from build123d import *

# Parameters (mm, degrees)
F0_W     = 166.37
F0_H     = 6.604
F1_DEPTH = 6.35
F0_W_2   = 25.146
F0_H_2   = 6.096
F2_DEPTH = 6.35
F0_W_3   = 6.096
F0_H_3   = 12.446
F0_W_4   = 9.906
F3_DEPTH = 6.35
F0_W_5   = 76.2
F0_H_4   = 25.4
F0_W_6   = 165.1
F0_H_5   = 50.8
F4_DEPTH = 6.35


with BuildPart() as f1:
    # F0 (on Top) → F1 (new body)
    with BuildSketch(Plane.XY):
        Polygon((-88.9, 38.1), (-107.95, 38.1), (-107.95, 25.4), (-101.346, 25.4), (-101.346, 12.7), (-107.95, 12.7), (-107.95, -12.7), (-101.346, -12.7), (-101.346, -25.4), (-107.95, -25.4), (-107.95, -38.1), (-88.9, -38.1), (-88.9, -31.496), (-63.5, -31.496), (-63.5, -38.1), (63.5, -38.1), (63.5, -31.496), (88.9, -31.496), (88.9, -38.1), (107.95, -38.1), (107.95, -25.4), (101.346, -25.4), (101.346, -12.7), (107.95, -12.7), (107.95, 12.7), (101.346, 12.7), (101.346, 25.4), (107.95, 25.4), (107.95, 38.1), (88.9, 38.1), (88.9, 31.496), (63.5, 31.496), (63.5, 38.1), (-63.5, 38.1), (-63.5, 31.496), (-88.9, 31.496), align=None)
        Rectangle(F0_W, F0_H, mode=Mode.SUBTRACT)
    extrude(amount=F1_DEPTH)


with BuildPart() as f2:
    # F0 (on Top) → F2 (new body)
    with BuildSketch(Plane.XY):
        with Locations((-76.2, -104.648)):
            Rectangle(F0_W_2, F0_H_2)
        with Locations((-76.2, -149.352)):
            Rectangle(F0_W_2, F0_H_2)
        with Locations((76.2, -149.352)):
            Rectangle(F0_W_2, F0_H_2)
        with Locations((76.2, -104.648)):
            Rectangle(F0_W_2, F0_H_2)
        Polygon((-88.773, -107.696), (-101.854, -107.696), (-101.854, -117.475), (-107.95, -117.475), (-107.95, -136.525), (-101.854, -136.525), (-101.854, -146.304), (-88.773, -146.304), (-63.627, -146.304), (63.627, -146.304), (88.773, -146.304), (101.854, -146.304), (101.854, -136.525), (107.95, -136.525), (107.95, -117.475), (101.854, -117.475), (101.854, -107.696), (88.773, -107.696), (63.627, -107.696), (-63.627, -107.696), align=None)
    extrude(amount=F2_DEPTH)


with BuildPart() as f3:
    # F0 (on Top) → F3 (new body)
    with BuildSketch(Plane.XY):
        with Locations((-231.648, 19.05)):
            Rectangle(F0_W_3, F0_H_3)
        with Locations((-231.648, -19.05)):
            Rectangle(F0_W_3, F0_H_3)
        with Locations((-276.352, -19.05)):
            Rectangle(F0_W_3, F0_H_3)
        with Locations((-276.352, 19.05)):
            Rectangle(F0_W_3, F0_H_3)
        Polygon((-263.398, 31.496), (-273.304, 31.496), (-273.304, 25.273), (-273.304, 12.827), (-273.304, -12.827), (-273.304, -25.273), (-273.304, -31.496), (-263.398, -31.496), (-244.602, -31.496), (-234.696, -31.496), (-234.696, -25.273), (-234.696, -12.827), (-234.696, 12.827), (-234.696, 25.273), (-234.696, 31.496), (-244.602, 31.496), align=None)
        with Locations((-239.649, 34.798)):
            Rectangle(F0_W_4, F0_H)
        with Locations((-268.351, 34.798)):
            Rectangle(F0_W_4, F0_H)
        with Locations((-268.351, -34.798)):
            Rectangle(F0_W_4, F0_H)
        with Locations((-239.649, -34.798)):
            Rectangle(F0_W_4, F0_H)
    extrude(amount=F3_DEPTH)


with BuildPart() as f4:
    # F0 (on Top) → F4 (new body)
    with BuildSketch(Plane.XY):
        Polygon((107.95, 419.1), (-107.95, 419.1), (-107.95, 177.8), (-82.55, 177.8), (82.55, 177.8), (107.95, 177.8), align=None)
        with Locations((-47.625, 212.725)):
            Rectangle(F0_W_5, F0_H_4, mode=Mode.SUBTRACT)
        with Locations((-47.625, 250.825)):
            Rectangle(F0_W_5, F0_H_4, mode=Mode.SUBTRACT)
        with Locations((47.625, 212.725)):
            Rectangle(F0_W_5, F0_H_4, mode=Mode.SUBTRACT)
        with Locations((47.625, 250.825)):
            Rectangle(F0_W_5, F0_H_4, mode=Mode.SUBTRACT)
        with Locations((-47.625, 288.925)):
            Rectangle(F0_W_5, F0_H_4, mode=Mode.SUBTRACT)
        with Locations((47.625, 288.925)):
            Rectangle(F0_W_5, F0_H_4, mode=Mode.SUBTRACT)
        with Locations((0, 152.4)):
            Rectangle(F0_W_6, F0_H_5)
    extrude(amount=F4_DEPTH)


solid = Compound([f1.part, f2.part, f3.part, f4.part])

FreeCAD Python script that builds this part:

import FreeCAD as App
import Part
import Sketcher

V = App.Vector
Q = App.Units.Quantity

doc = App.newDocument("Part")
params = doc.addObject("Spreadsheet::Sheet", "Params")
for row, (alias, value) in enumerate([
    ("sketch1_width", "1 in"),
    ("sketch1_width2", "5 in"),
    ("sketch1_height", "0.5 in"),
    ("sketch1_width3", "0.75 in"),
    ("sketch1_width4", "0.26 in"),
    ("pad1_length", "0.25 in"),
    ("sketch2_width", "0.24 in"),
    ("sketch2_width2", "0.99 in"),
    ("sketch2_height", "0.75 in"),
    ("sketch2_width3", "0.515 in"),
    ("pad2_length", "0.25 in"),
    ("sketch3_width", "0.24 in"),
    ("sketch3_width2", "0.39 in"),
    ("sketch3_height", "0.49 in"),
    ("sketch3_height2", "0.26 in"),
    ("sketch3_height3", "1.01 in"),
    ("pad3_length", "0.25 in"),
    ("sketch4_width", "1 in"),
    ("sketch4_width2", "3 in"),
    ("sketch4_height", "2 in"),
    ("sketch4_width3", "8.5 in"),
    ("sketch4_height2", "9.5 in"),
    ("pad4_length", "0.25 in"),
], start=1):
    params.set(f"A{row}", alias)
    params.set(f"B{row}", "=" + value)
    params.setAlias(f"B{row}", alias)

body = doc.addObject("PartDesign::Body", "Body")

sketch1 = doc.addObject("Sketcher::SketchObject", "Sketch")
body.addObject(sketch1)
sketch1.AttachmentSupport = (doc.XY_Plane, [""])
sketch1.MapMode = "FlatFace"
sketch1.addGeometry([
    Part.LineSegment(V(-89, 38, 0), V(-108, 38, 0)),
    Part.LineSegment(V(-108, 38, 0), V(-108, 25, 0)),
    Part.LineSegment(V(-108, 25, 0), V(-101, 25, 0)),
    Part.LineSegment(V(-101, 25, 0), V(-101, 13, 0)),
    Part.LineSegment(V(-101, 13, 0), V(-108, 13, 0)),
    Part.LineSegment(V(-108, 13, 0), V(-108, -13, 0)),
    Part.LineSegment(V(-108, -13, 0), V(-101, -13, 0)),
    Part.LineSegment(V(-101, -13, 0), V(-101, -25, 0)),
    Part.LineSegment(V(-101, -25, 0), V(-108, -25, 0)),
    Part.LineSegment(V(-108, -25, 0), V(-108, -38, 0)),
    Part.LineSegment(V(-108, -38, 0), V(-89, -38, 0)),
    Part.LineSegment(V(-89, -38, 0), V(-89, -31, 0)),
    Part.LineSegment(V(-89, -31, 0), V(-64, -31, 0)),
    Part.LineSegment(V(-64, -31, 0), V(-64, -38, 0)),
    Part.LineSegment(V(-64, -38, 0), V(64, -38, 0)),
    Part.LineSegment(V(64, -38, 0), V(64, -31, 0)),
    Part.LineSegment(V(64, -31, 0), V(89, -31, 0)),
    Part.LineSegment(V(89, -31, 0), V(89, -38, 0)),
    Part.LineSegment(V(89, -38, 0), V(108, -38, 0)),
    Part.LineSegment(V(108, -38, 0), V(108, -25, 0)),
    Part.LineSegment(V(108, -25, 0), V(101, -25, 0)),
    Part.LineSegment(V(101, -25, 0), V(101, -13, 0)),
    Part.LineSegment(V(101, -13, 0), V(108, -13, 0)),
    Part.LineSegment(V(108, -13, 0), V(108, 13, 0)),
    Part.LineSegment(V(108, 13, 0), V(101, 13, 0)),
    Part.LineSegment(V(101, 13, 0), V(101, 25, 0)),
    Part.LineSegment(V(101, 25, 0), V(108, 25, 0)),
    Part.LineSegment(V(108, 25, 0), V(108, 38, 0)),
    Part.LineSegment(V(108, 38, 0), V(89, 38, 0)),
    Part.LineSegment(V(89, 38, 0), V(89, 31, 0)),
    Part.LineSegment(V(89, 31, 0), V(64, 31, 0)),
    Part.LineSegment(V(64, 31, 0), V(64, 38, 0)),
    Part.LineSegment(V(64, 38, 0), V(-64, 38, 0)),
    Part.LineSegment(V(-64, 38, 0), V(-64, 31, 0)),
    Part.LineSegment(V(-64, 31, 0), V(-89, 31, 0)),
    Part.LineSegment(V(-89, 31, 0), V(-89, 38, 0)),
    Part.LineSegment(V(83, -3, 0), V(-83, -3, 0)),
    Part.LineSegment(V(-83, -3, 0), V(-83, 3, 0)),
    Part.LineSegment(V(-83, 3, 0), V(83, 3, 0)),
    Part.LineSegment(V(83, 3, 0), V(83, -3, 0)),
], False)
sketch1.addConstraint([
    Sketcher.Constraint("Coincident", 0, 2, 1, 1),
    Sketcher.Constraint("Coincident", 1, 2, 2, 1),
    Sketcher.Constraint("Coincident", 2, 2, 3, 1),
    Sketcher.Constraint("Coincident", 3, 2, 4, 1),
    Sketcher.Constraint("Coincident", 4, 2, 5, 1),
    Sketcher.Constraint("Coincident", 5, 2, 6, 1),
    Sketcher.Constraint("Coincident", 6, 2, 7, 1),
    Sketcher.Constraint("Coincident", 7, 2, 8, 1),
    Sketcher.Constraint("Coincident", 8, 2, 9, 1),
    Sketcher.Constraint("Coincident", 9, 2, 10, 1),
    Sketcher.Constraint("Coincident", 10, 2, 11, 1),
    Sketcher.Constraint("Coincident", 11, 2, 12, 1),
    Sketcher.Constraint("Coincident", 12, 2, 13, 1),
    Sketcher.Constraint("Coincident", 13, 2, 14, 1),
    Sketcher.Constraint("Coincident", 14, 2, 15, 1),
    Sketcher.Constraint("Coincident", 15, 2, 16, 1),
    Sketcher.Constraint("Coincident", 16, 2, 17, 1),
    Sketcher.Constraint("Coincident", 17, 2, 18, 1),
    Sketcher.Constraint("Coincident", 18, 2, 19, 1),
    Sketcher.Constraint("Coincident", 19, 2, 20, 1),
    Sketcher.Constraint("Coincident", 20, 2, 21, 1),
    Sketcher.Constraint("Coincident", 21, 2, 22, 1),
    Sketcher.Constraint("Coincident", 22, 2, 23, 1),
    Sketcher.Constraint("Coincident", 23, 2, 24, 1),
    Sketcher.Constraint("Coincident", 24, 2, 25, 1),
    Sketcher.Constraint("Coincident", 25, 2, 26, 1),
    Sketcher.Constraint("Coincident", 26, 2, 27, 1),
    Sketcher.Constraint("Coincident", 27, 2, 28, 1),
    Sketcher.Constraint("Coincident", 28, 2, 29, 1),
    Sketcher.Constraint("Coincident", 29, 2, 30, 1),
    Sketcher.Constraint("Coincident", 30, 2, 31, 1),
    Sketcher.Constraint("Coincident", 31, 2, 32, 1),
    Sketcher.Constraint("Coincident", 32, 2, 33, 1),
    Sketcher.Constraint("Coincident", 33, 2, 34, 1),
    Sketcher.Constraint("Coincident", 34, 2, 35, 1),
    Sketcher.Constraint("Coincident", 35, 2, 0, 1),
    Sketcher.Constraint("Coincident", 36, 2, 37, 1),
    Sketcher.Constraint("Coincident", 37, 2, 38, 1),
    Sketcher.Constraint("Coincident", 38, 2, 39, 1),
    Sketcher.Constraint("Coincident", 39, 2, 36, 1),
    Sketcher.Constraint("Horizontal", 0),
    Sketcher.Constraint("Vertical", 1),
    Sketcher.Constraint("Horizontal", 2),
    Sketcher.Constraint("Vertical", 3),
    Sketcher.Constraint("Horizontal", 4),
    Sketcher.Constraint("Vertical", 5),
    Sketcher.Constraint("Horizontal", 6),
    Sketcher.Constraint("Vertical", 7),
    Sketcher.Constraint("Horizontal", 8),
    Sketcher.Constraint("Vertical", 9),
    Sketcher.Constraint("Horizontal", 10),
    Sketcher.Constraint("Vertical", 11),
    Sketcher.Constraint("Horizontal", 12),
    Sketcher.Constraint("Vertical", 13),
    Sketcher.Constraint("Horizontal", 14),
    Sketcher.Constraint("Vertical", 15),
    Sketcher.Constraint("Horizontal", 16),
    Sketcher.Constraint("Vertical", 17),
    Sketcher.Constraint("Horizontal", 18),
    Sketcher.Constraint("Vertical", 19),
    Sketcher.Constraint("Horizontal", 20),
    Sketcher.Constraint("Vertical", 21),
    Sketcher.Constraint("Horizontal", 22),
    Sketcher.Constraint("Vertical", 23),
    Sketcher.Constraint("Horizontal", 24),
    Sketcher.Constraint("Vertical", 25),
    Sketcher.Constraint("Horizontal", 26),
    Sketcher.Constraint("Vertical", 27),
    Sketcher.Constraint("Horizontal", 28),
    Sketcher.Constraint("Vertical", 29),
    Sketcher.Constraint("Horizontal", 30),
    Sketcher.Constraint("Vertical", 31),
    Sketcher.Constraint("Horizontal", 32),
    Sketcher.Constraint("Vertical", 33),
    Sketcher.Constraint("Horizontal", 34),
    Sketcher.Constraint("Vertical", 35),
    Sketcher.Constraint("Horizontal", 36),
    Sketcher.Constraint("Vertical", 37),
    Sketcher.Constraint("Horizontal", 38),
    Sketcher.Constraint("Vertical", 39),
    Sketcher.Constraint("Symmetric", 0, 2, 18, 2, -1, 1),
    Sketcher.Constraint("Symmetric", 2, 2, 20, 2, -1, 1),
    Sketcher.Constraint("Symmetric", 4, 2, 22, 2, -1, 1),
    Sketcher.Constraint("Symmetric", 6, 2, 24, 2, -1, 1),
    Sketcher.Constraint("Symmetric", 8, 2, 26, 2, -1, 1),
    Sketcher.Constraint("Symmetric", 10, 2, 28, 2, -1, 1),
    Sketcher.Constraint("Symmetric", 12, 2, 30, 2, -1, 1),
    Sketcher.Constraint("Symmetric", 14, 2, 32, 2, -1, 1),
    Sketcher.Constraint("Symmetric", 16, 2, 34, 2, -1, 1),
    Sketcher.Constraint("Symmetric", 36, 2, 38, 2, -1, 1),
    Sketcher.Constraint("Symmetric", 12, 2, 15, 2, -2),
    Sketcher.Constraint("Symmetric", 10, 2, 17, 2, -2),
    Sketcher.Constraint("Symmetric", 8, 2, 19, 2, -2),
    Sketcher.Constraint("Symmetric", 6, 2, 21, 2, -2),
    Sketcher.Constraint("Horizontal", 10, 2, 13, 2),
    Sketcher.Constraint("Vertical", 1, 2, 4, 2),
    Sketcher.Constraint("Equal", 1, 3),
    Sketcher.Constraint("Equal", 34, 5),
    Sketcher.Constraint("Equal", 26, 11),
    Sketcher.Constraint("Equal", 35, 37),
    Sketcher.Constraint("DistanceX", 12, 1, 12, 2, Q("1 in")),
    Sketcher.Constraint("DistanceX", 14, 1, 14, 2, Q("5 in")),
    Sketcher.Constraint("DistanceY", 1, 2, 1, 1, Q("0.5 in")),
    Sketcher.Constraint("DistanceX", 0, 2, 0, 1, Q("0.75 in")),
    Sketcher.Constraint("DistanceX", 2, 1, 2, 2, Q("0.26 in")),
    Sketcher.Constraint("DistanceX", 36, 2, 36, 1, Q("6.55 in")),
])
sketch1.setExpression("Constraints[100]", "Params.sketch1_width")
sketch1.setExpression("Constraints[101]", "Params.sketch1_width2")
sketch1.setExpression("Constraints[102]", "Params.sketch1_height")
sketch1.setExpression("Constraints[103]", "Params.sketch1_width3")
sketch1.setExpression("Constraints[104]", "Params.sketch1_width4")
pad1 = doc.addObject("PartDesign::Pad", "Pad")
body.addObject(pad1)
pad1.Profile = sketch1
pad1.setExpression("Length", "Params.pad1_length")
body2 = doc.addObject("PartDesign::Body", "Body001")

sketch2 = doc.addObject("Sketcher::SketchObject", "Sketch001")
body2.addObject(sketch2)
sketch2.AttachmentSupport = (doc.getObject("XY_Plane001"), [""])
sketch2.MapMode = "FlatFace"
sketch2.addGeometry([
    Part.LineSegment(V(-89, -102, 0), V(-89, -108, 0)),
    Part.LineSegment(V(-89, -108, 0), V(-102, -108, 0)),
    Part.LineSegment(V(-102, -108, 0), V(-102, -117, 0)),
    Part.LineSegment(V(-102, -117, 0), V(-108, -117, 0)),
    Part.LineSegment(V(-108, -117, 0), V(-108, -137, 0)),
    Part.LineSegment(V(-108, -137, 0), V(-102, -137, 0)),
    Part.LineSegment(V(-102, -137, 0), V(-102, -146, 0)),
    Part.LineSegment(V(-102, -146, 0), V(-89, -146, 0)),
    Part.LineSegment(V(-89, -146, 0), V(-89, -152, 0)),
    Part.LineSegment(V(-89, -152, 0), V(-64, -152, 0)),
    Part.LineSegment(V(-64, -152, 0), V(-64, -146, 0)),
    Part.LineSegment(V(-64, -146, 0), V(64, -146, 0)),
    Part.LineSegment(V(64, -146, 0), V(64, -152, 0)),
    Part.LineSegment(V(64, -152, 0), V(89, -152, 0)),
    Part.LineSegment(V(89, -152, 0), V(89, -146, 0)),
    Part.LineSegment(V(89, -146, 0), V(102, -146, 0)),
    Part.LineSegment(V(102, -146, 0), V(102, -137, 0)),
    Part.LineSegment(V(102, -137, 0), V(108, -137, 0)),
    Part.LineSegment(V(108, -137, 0), V(108, -117, 0)),
    Part.LineSegment(V(108, -117, 0), V(102, -117, 0)),
    Part.LineSegment(V(102, -117, 0), V(102, -108, 0)),
    Part.LineSegment(V(102, -108, 0), V(89, -108, 0)),
    Part.LineSegment(V(89, -108, 0), V(89, -102, 0)),
    Part.LineSegment(V(89, -102, 0), V(64, -102, 0)),
    Part.LineSegment(V(64, -102, 0), V(64, -108, 0)),
    Part.LineSegment(V(64, -108, 0), V(-64, -108, 0)),
    Part.LineSegment(V(-64, -108, 0), V(-64, -102, 0)),
    Part.LineSegment(V(-64, -102, 0), V(-89, -102, 0)),
], False)
sketch2.addConstraint([
    Sketcher.Constraint("Coincident", 0, 2, 1, 1),
    Sketcher.Constraint("Coincident", 1, 2, 2, 1),
    Sketcher.Constraint("Coincident", 2, 2, 3, 1),
    Sketcher.Constraint("Coincident", 3, 2, 4, 1),
    Sketcher.Constraint("Coincident", 4, 2, 5, 1),
    Sketcher.Constraint("Coincident", 5, 2, 6, 1),
    Sketcher.Constraint("Coincident", 6, 2, 7, 1),
    Sketcher.Constraint("Coincident", 7, 2, 8, 1),
    Sketcher.Constraint("Coincident", 8, 2, 9, 1),
    Sketcher.Constraint("Coincident", 9, 2, 10, 1),
    Sketcher.Constraint("Coincident", 10, 2, 11, 1),
    Sketcher.Constraint("Coincident", 11, 2, 12, 1),
    Sketcher.Constraint("Coincident", 12, 2, 13, 1),
    Sketcher.Constraint("Coincident", 13, 2, 14, 1),
    Sketcher.Constraint("Coincident", 14, 2, 15, 1),
    Sketcher.Constraint("Coincident", 15, 2, 16, 1),
    Sketcher.Constraint("Coincident", 16, 2, 17, 1),
    Sketcher.Constraint("Coincident", 17, 2, 18, 1),
    Sketcher.Constraint("Coincident", 18, 2, 19, 1),
    Sketcher.Constraint("Coincident", 19, 2, 20, 1),
    Sketcher.Constraint("Coincident", 20, 2, 21, 1),
    Sketcher.Constraint("Coincident", 21, 2, 22, 1),
    Sketcher.Constraint("Coincident", 22, 2, 23, 1),
    Sketcher.Constraint("Coincident", 23, 2, 24, 1),
    Sketcher.Constraint("Coincident", 24, 2, 25, 1),
    Sketcher.Constraint("Coincident", 25, 2, 26, 1),
    Sketcher.Constraint("Coincident", 26, 2, 27, 1),
    Sketcher.Constraint("Coincident", 27, 2, 0, 1),
    Sketcher.Constraint("Vertical", 0),
    Sketcher.Constraint("Horizontal", 1),
    Sketcher.Constraint("Vertical", 2),
    Sketcher.Constraint("Horizontal", 3),
    Sketcher.Constraint("Vertical", 4),
    Sketcher.Constraint("Horizontal", 5),
    Sketcher.Constraint("Vertical", 6),
    Sketcher.Constraint("Horizontal", 7),
    Sketcher.Constraint("Vertical", 8),
    Sketcher.Constraint("Horizontal", 9),
    Sketcher.Constraint("Vertical", 10),
    Sketcher.Constraint("Horizontal", 11),
    Sketcher.Constraint("Vertical", 12),
    Sketcher.Constraint("Horizontal", 13),
    Sketcher.Constraint("Vertical", 14),
    Sketcher.Constraint("Horizontal", 15),
    Sketcher.Constraint("Vertical", 16),
    Sketcher.Constraint("Horizontal", 17),
    Sketcher.Constraint("Vertical", 18),
    Sketcher.Constraint("Horizontal", 19),
    Sketcher.Constraint("Vertical", 20),
    Sketcher.Constraint("Horizontal", 21),
    Sketcher.Constraint("Vertical", 22),
    Sketcher.Constraint("Horizontal", 23),
    Sketcher.Constraint("Vertical", 24),
    Sketcher.Constraint("Horizontal", 25),
    Sketcher.Constraint("Vertical", 26),
    Sketcher.Constraint("Horizontal", 27),
    Sketcher.Constraint("Symmetric", 9, 2, 12, 2, -2),
    Sketcher.Constraint("Symmetric", 7, 2, 14, 2, -2),
    Sketcher.Constraint("Symmetric", 5, 2, 16, 2, -2),
    Sketcher.Constraint("Symmetric", 3, 2, 18, 2, -2),
    Sketcher.Constraint("Symmetric", 1, 2, 20, 2, -2),
    Sketcher.Constraint("Symmetric", 23, 2, 26, 2, -2),
    Sketcher.Constraint("Horizontal", 7, 2, 10, 2),
    Sketcher.Constraint("Horizontal", 21, 2, 24, 2),
    Sketcher.Constraint("Vertical", 2, 2, 5, 2),
    Sketcher.Constraint("Vertical", 0, 2, 7, 2),
    Sketcher.Constraint("Vertical", 14, 2, 21, 2),
    Sketcher.Constraint("Vertical", 12, 2, 23, 2),
    Sketcher.Constraint("Equal", 19, 0),
    Sketcher.Constraint("Equal", 2, 6),
    Sketcher.Constraint("Equal", 0, 8),
    Sketcher.Constraint("DistanceY", 8, 2, -1, 1, Q("6 in")),
    Sketcher.Constraint("DistanceY", 22, 2, -1, 1, Q("4 in")),
    Sketcher.Constraint("DistanceX", 7, 2, 11, 2, Q("6 in")),
    Sketcher.Constraint("DistanceX", 3, 2, 3, 1, Q("0.24 in")),
    Sketcher.Constraint("DistanceX", 9, 1, 9, 2, Q("0.99 in")),
    Sketcher.Constraint("DistanceY", 4, 2, 4, 1, Q("0.75 in")),
    Sketcher.Constraint("DistanceX", 1, 2, 1, 1, Q("0.515 in")),
])
sketch2.setExpression("Constraints[74]", "Params.sketch2_width")
sketch2.setExpression("Constraints[75]", "Params.sketch2_width2")
sketch2.setExpression("Constraints[76]", "Params.sketch2_height")
sketch2.setExpression("Constraints[77]", "Params.sketch2_width3")
pad2 = doc.addObject("PartDesign::Pad", "Pad001")
body2.addObject(pad2)
pad2.Profile = sketch2
pad2.setExpression("Length", "Params.pad2_length")
body3 = doc.addObject("PartDesign::Body", "Body002")

sketch3 = doc.addObject("Sketcher::SketchObject", "Sketch002")
body3.addObject(sketch3)
sketch3.AttachmentSupport = (doc.getObject("XY_Plane002"), [""])
sketch3.MapMode = "FlatFace"
sketch3.addGeometry([
    Part.LineSegment(V(-235, 13, 0), V(-229, 13, 0)),
    Part.LineSegment(V(-229, 13, 0), V(-229, 25, 0)),
    Part.LineSegment(V(-229, 25, 0), V(-235, 25, 0)),
    Part.LineSegment(V(-235, 25, 0), V(-235, 38, 0)),
    Part.LineSegment(V(-235, 38, 0), V(-245, 38, 0)),
    Part.LineSegment(V(-245, 38, 0), V(-245, 31, 0)),
    Part.LineSegment(V(-245, 31, 0), V(-263, 31, 0)),
    Part.LineSegment(V(-263, 31, 0), V(-263, 38, 0)),
    Part.LineSegment(V(-263, 38, 0), V(-273, 38, 0)),
    Part.LineSegment(V(-273, 38, 0), V(-273, 25, 0)),
    Part.LineSegment(V(-273, 25, 0), V(-279, 25, 0)),
    Part.LineSegment(V(-279, 25, 0), V(-279, 13, 0)),
    Part.LineSegment(V(-279, 13, 0), V(-273, 13, 0)),
    Part.LineSegment(V(-273, 13, 0), V(-273, -13, 0)),
    Part.LineSegment(V(-273, -13, 0), V(-279, -13, 0)),
    Part.LineSegment(V(-279, -13, 0), V(-279, -25, 0)),
    Part.LineSegment(V(-279, -25, 0), V(-273, -25, 0)),
    Part.LineSegment(V(-273, -25, 0), V(-273, -38, 0)),
    Part.LineSegment(V(-273, -38, 0), V(-263, -38, 0)),
    Part.LineSegment(V(-263, -38, 0), V(-263, -31, 0)),
    Part.LineSegment(V(-263, -31, 0), V(-245, -31, 0)),
    Part.LineSegment(V(-245, -31, 0), V(-245, -38, 0)),
    Part.LineSegment(V(-245, -38, 0), V(-235, -38, 0)),
    Part.LineSegment(V(-235, -38, 0), V(-235, -25, 0)),
    Part.LineSegment(V(-235, -25, 0), V(-229, -25, 0)),
    Part.LineSegment(V(-229, -25, 0), V(-229, -13, 0)),
    Part.LineSegment(V(-229, -13, 0), V(-235, -13, 0)),
    Part.LineSegment(V(-235, -13, 0), V(-235, 13, 0)),
], False)
sketch3.addConstraint([
    Sketcher.Constraint("Coincident", 0, 2, 1, 1),
    Sketcher.Constraint("Coincident", 1, 2, 2, 1),
    Sketcher.Constraint("Coincident", 2, 2, 3, 1),
    Sketcher.Constraint("Coincident", 3, 2, 4, 1),
    Sketcher.Constraint("Coincident", 4, 2, 5, 1),
    Sketcher.Constraint("Coincident", 5, 2, 6, 1),
    Sketcher.Constraint("Coincident", 6, 2, 7, 1),
    Sketcher.Constraint("Coincident", 7, 2, 8, 1),
    Sketcher.Constraint("Coincident", 8, 2, 9, 1),
    Sketcher.Constraint("Coincident", 9, 2, 10, 1),
    Sketcher.Constraint("Coincident", 10, 2, 11, 1),
    Sketcher.Constraint("Coincident", 11, 2, 12, 1),
    Sketcher.Constraint("Coincident", 12, 2, 13, 1),
    Sketcher.Constraint("Coincident", 13, 2, 14, 1),
    Sketcher.Constraint("Coincident", 14, 2, 15, 1),
    Sketcher.Constraint("Coincident", 15, 2, 16, 1),
    Sketcher.Constraint("Coincident", 16, 2, 17, 1),
    Sketcher.Constraint("Coincident", 17, 2, 18, 1),
    Sketcher.Constraint("Coincident", 18, 2, 19, 1),
    Sketcher.Constraint("Coincident", 19, 2, 20, 1),
    Sketcher.Constraint("Coincident", 20, 2, 21, 1),
    Sketcher.Constraint("Coincident", 21, 2, 22, 1),
    Sketcher.Constraint("Coincident", 22, 2, 23, 1),
    Sketcher.Constraint("Coincident", 23, 2, 24, 1),
    Sketcher.Constraint("Coincident", 24, 2, 25, 1),
    Sketcher.Constraint("Coincident", 25, 2, 26, 1),
    Sketcher.Constraint("Coincident", 26, 2, 27, 1),
    Sketcher.Constraint("Coincident", 27, 2, 0, 1),
    Sketcher.Constraint("Horizontal", 0),
    Sketcher.Constraint("Vertical", 1),
    Sketcher.Constraint("Horizontal", 2),
    Sketcher.Constraint("Vertical", 3),
    Sketcher.Constraint("Horizontal", 4),
    Sketcher.Constraint("Vertical", 5),
    Sketcher.Constraint("Horizontal", 6),
    Sketcher.Constraint("Vertical", 7),
    Sketcher.Constraint("Horizontal", 8),
    Sketcher.Constraint("Vertical", 9),
    Sketcher.Constraint("Horizontal", 10),
    Sketcher.Constraint("Vertical", 11),
    Sketcher.Constraint("Horizontal", 12),
    Sketcher.Constraint("Vertical", 13),
    Sketcher.Constraint("Horizontal", 14),
    Sketcher.Constraint("Vertical", 15),
    Sketcher.Constraint("Horizontal", 16),
    Sketcher.Constraint("Vertical", 17),
    Sketcher.Constraint("Horizontal", 18),
    Sketcher.Constraint("Vertical", 19),
    Sketcher.Constraint("Horizontal", 20),
    Sketcher.Constraint("Vertical", 21),
    Sketcher.Constraint("Horizontal", 22),
    Sketcher.Constraint("Vertical", 23),
    Sketcher.Constraint("Horizontal", 24),
    Sketcher.Constraint("Vertical", 25),
    Sketcher.Constraint("Horizontal", 26),
    Sketcher.Constraint("Vertical", 27),
    Sketcher.Constraint("Symmetric", 11, 2, 14, 2, -1),
    Sketcher.Constraint("Symmetric", 9, 2, 16, 2, -1),
    Sketcher.Constraint("Symmetric", 7, 2, 18, 2, -1),
    Sketcher.Constraint("Symmetric", 5, 2, 20, 2, -1),
    Sketcher.Constraint("Symmetric", 3, 2, 22, 2, -1),
    Sketcher.Constraint("Symmetric", 1, 2, 24, 2, -1),
    Sketcher.Constraint("Horizontal", 4, 2, 7, 2),
    Sketcher.Constraint("Horizontal", 2, 2, 9, 2),
    Sketcher.Constraint("Horizontal", 0, 2, 11, 2),
    Sketcher.Constraint("Horizontal", 14, 2, 25, 2),
    Sketcher.Constraint("Vertical", 9, 2, 12, 2),
    Sketcher.Constraint("Vertical", 23, 2, 26, 2),
    Sketcher.Constraint("Equal", 4, 8),
    Sketcher.Constraint("Equal", 2, 10),
    Sketcher.Constraint("DistanceX", 0, 2, -1, 1, Q("9 in")),
    Sketcher.Constraint("DistanceX", 10, 2, -1, 1, Q("11 in")),
    Sketcher.Constraint("DistanceX", 0, 1, 0, 2, Q("0.24 in")),
    Sketcher.Constraint("DistanceX", 4, 2, 4, 1, Q("0.39 in")),
    Sketcher.Constraint("DistanceY", 1, 1, 1, 2, Q("0.49 in")),
    Sketcher.Constraint("DistanceY", 5, 2, 5, 1, Q("0.26 in")),
    Sketcher.Constraint("DistanceY", 13, 2, 13, 1, Q("1.01 in")),
    Sketcher.Constraint("DistanceY", -1, 1, 3, 2, Q("1.5 in")),
])
sketch3.setExpression("Constraints[72]", "Params.sketch3_width")
sketch3.setExpression("Constraints[73]", "Params.sketch3_width2")
sketch3.setExpression("Constraints[74]", "Params.sketch3_height")
sketch3.setExpression("Constraints[75]", "Params.sketch3_height2")
sketch3.setExpression("Constraints[76]", "Params.sketch3_height3")
pad3 = doc.addObject("PartDesign::Pad", "Pad002")
body3.addObject(pad3)
pad3.Profile = sketch3
pad3.setExpression("Length", "Params.pad3_length")
body4 = doc.addObject("PartDesign::Body", "Body003")

sketch4 = doc.addObject("Sketcher::SketchObject", "Sketch003")
body4.addObject(sketch4)
sketch4.AttachmentSupport = (doc.getObject("XY_Plane003"), [""])
sketch4.MapMode = "FlatFace"
sketch4.addGeometry([
    Part.LineSegment(V(108, 419, 0), V(-108, 419, 0)),
    Part.LineSegment(V(-108, 419, 0), V(-108, 178, 0)),
    Part.LineSegment(V(-108, 178, 0), V(-83, 178, 0)),
    Part.LineSegment(V(-83, 178, 0), V(-83, 127, 0)),
    Part.LineSegment(V(-83, 127, 0), V(83, 127, 0)),
    Part.LineSegment(V(83, 127, 0), V(83, 178, 0)),
    Part.LineSegment(V(83, 178, 0), V(108, 178, 0)),
    Part.LineSegment(V(108, 178, 0), V(108, 419, 0)),
    Part.LineSegment(V(-10, 200, 0), V(-86, 200, 0)),
    Part.LineSegment(V(-86, 200, 0), V(-86, 225, 0)),
    Part.LineSegment(V(-86, 225, 0), V(-10, 225, 0)),
    Part.LineSegment(V(-10, 225, 0), V(-10, 200, 0)),
    Part.LineSegment(V(-10, 238, 0), V(-86, 238, 0)),
    Part.LineSegment(V(-86, 238, 0), V(-86, 264, 0)),
    Part.LineSegment(V(-86, 264, 0), V(-10, 264, 0)),
    Part.LineSegment(V(-10, 264, 0), V(-10, 238, 0)),
    Part.LineSegment(V(86, 200, 0), V(10, 200, 0)),
    Part.LineSegment(V(10, 200, 0), V(10, 225, 0)),
    Part.LineSegment(V(10, 225, 0), V(86, 225, 0)),
    Part.LineSegment(V(86, 225, 0), V(86, 200, 0)),
    Part.LineSegment(V(86, 238, 0), V(10, 238, 0)),
    Part.LineSegment(V(10, 238, 0), V(10, 264, 0)),
    Part.LineSegment(V(10, 264, 0), V(86, 264, 0)),
    Part.LineSegment(V(86, 264, 0), V(86, 238, 0)),
    Part.LineSegment(V(-10, 276, 0), V(-86, 276, 0)),
    Part.LineSegment(V(-86, 276, 0), V(-86, 302, 0)),
    Part.LineSegment(V(-86, 302, 0), V(-10, 302, 0)),
    Part.LineSegment(V(-10, 302, 0), V(-10, 276, 0)),
    Part.LineSegment(V(86, 276, 0), V(10, 276, 0)),
    Part.LineSegment(V(10, 276, 0), V(10, 302, 0)),
    Part.LineSegment(V(10, 302, 0), V(86, 302, 0)),
    Part.LineSegment(V(86, 302, 0), V(86, 276, 0)),
], False)
sketch4.addConstraint([
    Sketcher.Constraint("Coincident", 0, 2, 1, 1),
    Sketcher.Constraint("Coincident", 1, 2, 2, 1),
    Sketcher.Constraint("Coincident", 2, 2, 3, 1),
    Sketcher.Constraint("Coincident", 3, 2, 4, 1),
    Sketcher.Constraint("Coincident", 4, 2, 5, 1),
    Sketcher.Constraint("Coincident", 5, 2, 6, 1),
    Sketcher.Constraint("Coincident", 6, 2, 7, 1),
    Sketcher.Constraint("Coincident", 7, 2, 0, 1),
    Sketcher.Constraint("Coincident", 8, 2, 9, 1),
    Sketcher.Constraint("Coincident", 9, 2, 10, 1),
    Sketcher.Constraint("Coincident", 10, 2, 11, 1),
    Sketcher.Constraint("Coincident", 11, 2, 8, 1),
    Sketcher.Constraint("Coincident", 12, 2, 13, 1),
    Sketcher.Constraint("Coincident", 13, 2, 14, 1),
    Sketcher.Constraint("Coincident", 14, 2, 15, 1),
    Sketcher.Constraint("Coincident", 15, 2, 12, 1),
    Sketcher.Constraint("Coincident", 16, 2, 17, 1),
    Sketcher.Constraint("Coincident", 17, 2, 18, 1),
    Sketcher.Constraint("Coincident", 18, 2, 19, 1),
    Sketcher.Constraint("Coincident", 19, 2, 16, 1),
    Sketcher.Constraint("Coincident", 20, 2, 21, 1),
    Sketcher.Constraint("Coincident", 21, 2, 22, 1),
    Sketcher.Constraint("Coincident", 22, 2, 23, 1),
    Sketcher.Constraint("Coincident", 23, 2, 20, 1),
    Sketcher.Constraint("Coincident", 24, 2, 25, 1),
    Sketcher.Constraint("Coincident", 25, 2, 26, 1),
    Sketcher.Constraint("Coincident", 26, 2, 27, 1),
    Sketcher.Constraint("Coincident", 27, 2, 24, 1),
    Sketcher.Constraint("Coincident", 28, 2, 29, 1),
    Sketcher.Constraint("Coincident", 29, 2, 30, 1),
    Sketcher.Constraint("Coincident", 30, 2, 31, 1),
    Sketcher.Constraint("Coincident", 31, 2, 28, 1),
    Sketcher.Constraint("Horizontal", 0),
    Sketcher.Constraint("Vertical", 1),
    Sketcher.Constraint("Horizontal", 2),
    Sketcher.Constraint("Vertical", 3),
    Sketcher.Constraint("Horizontal", 4),
    Sketcher.Constraint("Vertical", 5),
    Sketcher.Constraint("Horizontal", 6),
    Sketcher.Constraint("Vertical", 7),
    Sketcher.Constraint("Horizontal", 8),
    Sketcher.Constraint("Vertical", 9),
    Sketcher.Constraint("Horizontal", 10),
    Sketcher.Constraint("Vertical", 11),
    Sketcher.Constraint("Horizontal", 12),
    Sketcher.Constraint("Vertical", 13),
    Sketcher.Constraint("Horizontal", 14),
    Sketcher.Constraint("Vertical", 15),
    Sketcher.Constraint("Horizontal", 16),
    Sketcher.Constraint("Vertical", 17),
    Sketcher.Constraint("Horizontal", 18),
    Sketcher.Constraint("Vertical", 19),
    Sketcher.Constraint("Horizontal", 20),
    Sketcher.Constraint("Vertical", 21),
    Sketcher.Constraint("Horizontal", 22),
    Sketcher.Constraint("Vertical", 23),
    Sketcher.Constraint("Horizontal", 24),
    Sketcher.Constraint("Vertical", 25),
    Sketcher.Constraint("Horizontal", 26),
    Sketcher.Constraint("Vertical", 27),
    Sketcher.Constraint("Horizontal", 28),
    Sketcher.Constraint("Vertical", 29),
    Sketcher.Constraint("Horizontal", 30),
    Sketcher.Constraint("Vertical", 31),
    Sketcher.Constraint("Symmetric", 2, 2, 5, 2, -2),
    Sketcher.Constraint("Symmetric", 11, 2, 16, 2, -2),
    Sketcher.Constraint("Symmetric", 9, 2, 18, 2, -2),
    Sketcher.Constraint("Symmetric", 15, 2, 20, 2, -2),
    Sketcher.Constraint("Symmetric", 13, 2, 22, 2, -2),
    Sketcher.Constraint("Symmetric", 27, 2, 28, 2, -2),
    Sketcher.Constraint("Symmetric", 25, 2, 30, 2, -2),
    Sketcher.Constraint("Vertical", 9, 2, 12, 2),
    Sketcher.Constraint("Vertical", 11, 2, 14, 2),
    Sketcher.Constraint("Vertical", 13, 2, 24, 2),
    Sketcher.Constraint("Vertical", 15, 2, 26, 2),
    Sketcher.Constraint("Equal", 2, 6),
    Sketcher.Constraint("Equal", 6, 9),
    Sketcher.Constraint("Equal", 11, 13),
    Sketcher.Constraint("Equal", 23, 25),
    Sketcher.Constraint("DistanceX", 2, 1, 2, 2, Q("1 in")),
    Sketcher.Constraint("DistanceX", 8, 2, 8, 1, Q("3 in")),
    Sketcher.Constraint("DistanceY", 3, 2, 3, 1, Q("2 in")),
    Sketcher.Constraint("DistanceX", 0, 2, 0, 1, Q("8.5 in")),
    Sketcher.Constraint("DistanceY", 1, 2, 1, 1, Q("9.5 in")),
    Sketcher.Constraint("DistanceY", -1, 1, 1, 2, Q("7 in")),
    Sketcher.Constraint("DistanceY", 9, 2, 24, 2, Q("2 in")),
    Sketcher.Constraint("DistanceY", 9, 2, 12, 2, Q("0.5 in")),
    Sketcher.Constraint("DistanceX", 11, 2, 16, 2, Q("0.75 in")),
    Sketcher.Constraint("DistanceY", -1, 1, 8, 2, Q("7.875 in")),
])
sketch4.setExpression("Constraints[79]", "Params.sketch4_width")
sketch4.setExpression("Constraints[80]", "Params.sketch4_width2")
sketch4.setExpression("Constraints[81]", "Params.sketch4_height")
sketch4.setExpression("Constraints[82]", "Params.sketch4_width3")
sketch4.setExpression("Constraints[83]", "Params.sketch4_height2")
pad4 = doc.addObject("PartDesign::Pad", "Pad003")
body4.addObject(pad4)
pad4.Profile = sketch4
pad4.setExpression("Length", "Params.pad4_length")

doc.recompute()
